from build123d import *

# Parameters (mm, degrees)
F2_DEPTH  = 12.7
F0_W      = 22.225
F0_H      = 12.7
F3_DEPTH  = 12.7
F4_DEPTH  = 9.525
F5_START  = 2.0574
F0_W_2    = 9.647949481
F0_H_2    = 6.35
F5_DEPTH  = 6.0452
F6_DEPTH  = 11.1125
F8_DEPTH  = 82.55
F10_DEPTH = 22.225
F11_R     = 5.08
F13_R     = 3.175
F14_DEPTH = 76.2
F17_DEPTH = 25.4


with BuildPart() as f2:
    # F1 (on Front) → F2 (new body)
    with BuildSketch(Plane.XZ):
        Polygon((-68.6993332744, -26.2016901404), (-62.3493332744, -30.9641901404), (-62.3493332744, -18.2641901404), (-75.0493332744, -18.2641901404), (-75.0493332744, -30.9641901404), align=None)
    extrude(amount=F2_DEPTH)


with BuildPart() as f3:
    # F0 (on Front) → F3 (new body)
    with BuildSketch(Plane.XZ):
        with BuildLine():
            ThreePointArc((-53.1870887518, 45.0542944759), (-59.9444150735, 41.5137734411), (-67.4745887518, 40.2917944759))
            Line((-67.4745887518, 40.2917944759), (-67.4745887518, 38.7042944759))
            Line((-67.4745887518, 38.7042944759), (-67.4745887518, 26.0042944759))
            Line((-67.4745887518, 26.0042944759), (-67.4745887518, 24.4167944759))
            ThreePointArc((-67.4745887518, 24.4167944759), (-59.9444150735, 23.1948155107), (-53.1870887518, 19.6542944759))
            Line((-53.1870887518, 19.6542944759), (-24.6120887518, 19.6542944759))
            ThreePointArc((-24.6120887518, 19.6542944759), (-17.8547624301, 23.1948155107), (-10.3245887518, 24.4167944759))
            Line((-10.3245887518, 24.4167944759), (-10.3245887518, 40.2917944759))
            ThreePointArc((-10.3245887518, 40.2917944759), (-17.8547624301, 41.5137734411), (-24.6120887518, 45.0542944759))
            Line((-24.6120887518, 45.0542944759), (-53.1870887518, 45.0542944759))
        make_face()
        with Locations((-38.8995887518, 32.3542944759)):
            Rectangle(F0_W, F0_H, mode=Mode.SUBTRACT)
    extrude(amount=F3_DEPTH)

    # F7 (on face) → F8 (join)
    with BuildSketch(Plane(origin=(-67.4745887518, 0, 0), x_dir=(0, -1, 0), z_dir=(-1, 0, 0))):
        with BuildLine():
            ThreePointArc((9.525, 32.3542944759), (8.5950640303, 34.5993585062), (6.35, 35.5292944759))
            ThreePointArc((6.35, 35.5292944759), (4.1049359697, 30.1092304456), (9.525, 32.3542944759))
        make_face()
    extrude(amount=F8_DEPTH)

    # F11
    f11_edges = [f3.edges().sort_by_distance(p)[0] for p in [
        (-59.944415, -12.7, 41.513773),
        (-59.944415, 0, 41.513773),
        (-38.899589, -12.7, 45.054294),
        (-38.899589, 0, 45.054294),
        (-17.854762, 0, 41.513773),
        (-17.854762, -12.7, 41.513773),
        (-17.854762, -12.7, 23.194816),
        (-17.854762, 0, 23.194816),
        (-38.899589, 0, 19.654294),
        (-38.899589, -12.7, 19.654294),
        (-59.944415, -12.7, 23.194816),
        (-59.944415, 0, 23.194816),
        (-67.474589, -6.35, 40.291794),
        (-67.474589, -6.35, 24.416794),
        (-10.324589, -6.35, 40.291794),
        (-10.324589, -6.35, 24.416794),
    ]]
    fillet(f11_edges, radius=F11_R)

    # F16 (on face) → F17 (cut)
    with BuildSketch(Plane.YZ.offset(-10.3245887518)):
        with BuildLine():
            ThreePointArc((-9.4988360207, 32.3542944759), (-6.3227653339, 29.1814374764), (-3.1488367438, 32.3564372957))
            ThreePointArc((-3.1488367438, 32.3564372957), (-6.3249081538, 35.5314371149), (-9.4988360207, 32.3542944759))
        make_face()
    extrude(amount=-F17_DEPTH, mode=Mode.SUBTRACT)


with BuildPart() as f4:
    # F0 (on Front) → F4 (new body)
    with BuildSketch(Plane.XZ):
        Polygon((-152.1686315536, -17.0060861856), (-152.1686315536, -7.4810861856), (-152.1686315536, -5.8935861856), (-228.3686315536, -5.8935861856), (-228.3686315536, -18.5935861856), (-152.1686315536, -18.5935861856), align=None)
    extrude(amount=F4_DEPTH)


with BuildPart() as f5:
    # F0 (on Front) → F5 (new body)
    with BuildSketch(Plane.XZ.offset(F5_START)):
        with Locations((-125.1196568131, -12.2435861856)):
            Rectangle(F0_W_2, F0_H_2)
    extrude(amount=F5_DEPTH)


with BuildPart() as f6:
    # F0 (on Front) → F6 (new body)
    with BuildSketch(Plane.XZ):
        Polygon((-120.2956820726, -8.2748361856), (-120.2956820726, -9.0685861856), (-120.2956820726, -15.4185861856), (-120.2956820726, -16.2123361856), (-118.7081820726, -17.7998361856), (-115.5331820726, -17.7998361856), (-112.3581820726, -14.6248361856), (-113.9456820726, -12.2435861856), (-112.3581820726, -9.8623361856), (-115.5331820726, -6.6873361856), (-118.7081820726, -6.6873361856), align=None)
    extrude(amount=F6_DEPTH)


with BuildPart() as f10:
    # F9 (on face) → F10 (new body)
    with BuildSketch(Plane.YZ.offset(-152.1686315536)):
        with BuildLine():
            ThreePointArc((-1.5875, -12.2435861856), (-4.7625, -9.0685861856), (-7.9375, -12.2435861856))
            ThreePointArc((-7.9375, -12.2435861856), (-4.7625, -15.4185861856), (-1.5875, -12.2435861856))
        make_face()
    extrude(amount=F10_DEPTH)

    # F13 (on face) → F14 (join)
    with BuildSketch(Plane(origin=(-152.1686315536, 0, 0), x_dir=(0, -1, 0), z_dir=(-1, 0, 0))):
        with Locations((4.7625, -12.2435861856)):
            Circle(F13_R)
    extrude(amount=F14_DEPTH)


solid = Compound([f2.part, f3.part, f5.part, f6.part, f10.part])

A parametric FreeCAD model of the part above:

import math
import FreeCAD as App
import Part
import Sketcher

V = App.Vector
Q = App.Units.Quantity


def edges_at(feature, points):
    """Names of the edges that pass closest to the given points."""
    edges = feature.Shape.Edges
    near = lambda p: min(range(len(edges)), key=lambda i: edges[i].distToShape(Part.Vertex(*p))[0])
    return sorted({f"Edge{near(p) + 1}" for p in points})


def add_polygon(sketch, points):
    """Adds a closed chain of lines whose ends are joined by coincident constraints."""
    first, n = sketch.GeometryCount, len(points)
    for a, b in zip(points, points[1:] + points[:1]):
        sketch.addGeometry(Part.LineSegment(App.Vector(*a, 0), App.Vector(*b, 0)), False)
    for i in range(n):
        sketch.addConstraint(Sketcher.Constraint("Coincident", first + i, 2, first + (i + 1) % n, 1))

doc = App.newDocument("Part")
body = doc.addObject("PartDesign::Body", "Body")

sketch1 = doc.addObject("Sketcher::SketchObject", "Sketch")
body.addObject(sketch1)
sketch1.AttachmentSupport = (doc.XZ_Plane, [""])
sketch1.MapMode = "FlatFace"
add_polygon(sketch1, [(-69, -26), (-62, -31), (-62, -18), (-75, -18), (-75, -31)])
sketch1.addConstraint([
    Sketcher.Constraint("Vertical", 1),
    Sketcher.Constraint("Horizontal", 2),
    Sketcher.Constraint("Vertical", 3),
    Sketcher.Constraint("Horizontal", 0, 2, 3, 2),
    Sketcher.Constraint("Equal", 2, 1),
    Sketcher.Constraint("Equal", 0, 4),
    Sketcher.Constraint("DistanceX", 2, 2, 2, 1, Q("0.5 in")),
    Sketcher.Constraint("Distance", 0, Q("0.3125 in")),
    Sketcher.Constraint("DistanceY", 0, 2, -1, 1, 30.96419),
    Sketcher.Constraint("DistanceX", 0, 2, -1, 1, 62.349333),
])
pad1 = doc.addObject("PartDesign::Pad", "Pad")
body.addObject(pad1)
pad1.Profile = sketch1
pad1.Length = Q("0.5 in")
body2 = doc.addObject("PartDesign::Body", "Body001")

sketch2 = doc.addObject("Sketcher::SketchObject", "Sketch001")
body2.addObject(sketch2)
sketch2.AttachmentSupport = (doc.getObject("XZ_Plane001"), [""])
sketch2.MapMode = "FlatFace"
sketch2.addGeometry(Part.ArcOfCircle(Part.Circle(V(-67, 64, 0), V(0, 0, 1), 24), math.radians(-90), math.radians(-53)), False)
sketch2.addGeometry(Part.LineSegment(V(-67, 40, 0), V(-67, 24, 0)), False)
sketch2.addGeometry(Part.ArcOfCircle(Part.Circle(V(-67, 1, 0), V(0, 0, 1), 24), math.radians(53), math.radians(90)), False)
sketch2.addGeometry(Part.LineSegment(V(-53, 20, 0), V(-25, 20, 0)), False)
sketch2.addGeometry(Part.ArcOfCircle(Part.Circle(V(-10, 1, 0), V(0, 0, 1), 24), math.radians(90), math.radians(127)), False)
sketch2.addGeometry(Part.LineSegment(V(-10, 24, 0), V(-10, 40, 0)), False)
sketch2.addGeometry(Part.ArcOfCircle(Part.Circle(V(-10, 64, 0), V(0, 0, 1), 24), math.radians(-127), math.radians(-90)), False)
sketch2.addGeometry(Part.LineSegment(V(-25, 45, 0), V(-53, 45, 0)), False)
add_polygon(sketch2, [(-28, 26), (-50, 26), (-50, 39), (-28, 39)])
sketch2.addConstraint([
    Sketcher.Constraint("Coincident", 0, 1, 1, 1),
    Sketcher.Constraint("Coincident", 1, 2, 2, 2),
    Sketcher.Constraint("Coincident", 2, 1, 3, 1),
    Sketcher.Constraint("Coincident", 3, 2, 4, 2),
    Sketcher.Constraint("Coincident", 4, 1, 5, 1),
    Sketcher.Constraint("Coincident", 5, 2, 6, 2),
    Sketcher.Constraint("Coincident", 6, 1, 7, 1),
    Sketcher.Constraint("Coincident", 7, 2, 0, 2),
    Sketcher.Constraint("Vertical", 1),
    Sketcher.Constraint("Horizontal", 3),
    Sketcher.Constraint("Vertical", 5),
    Sketcher.Constraint("Horizontal", 7),
    Sketcher.Constraint("Horizontal", 8),
    Sketcher.Constraint("Vertical", 9),
    Sketcher.Constraint("Horizontal", 10),
    Sketcher.Constraint("Vertical", 11),
    Sketcher.Constraint("Equal", 0, 2),
    Sketcher.Constraint("Equal", 2, 4),
    Sketcher.Constraint("Equal", 4, 6),
    Sketcher.Constraint("Horizontal", 2, 3, 4, 3),
    Sketcher.Constraint("Horizontal", 0, 3, 6, 3),
    Sketcher.Constraint("Vertical", 0, 3, 2, 3),
    Sketcher.Constraint("Vertical", 4, 3, 6, 3),
    Sketcher.Constraint("Vertical", 2, 3, 0, 1),
    Sketcher.Constraint("Vertical", 6, 3, 4, 1),
    Sketcher.Constraint("Vertical", 3, 2, 6, 1),
    Sketcher.Constraint("DistanceY", 9, 1, 9, 2, Q("0.5 in")),
    Sketcher.Constraint("Radius", 0, Q("0.9375 in")),
    Sketcher.Constraint("DistanceY", 3, 2, 6, 1, Q("1 in")),
    Sketcher.Constraint("DistanceX", 8, 2, 3, 2, Q("1 in")),
    Sketcher.Constraint("DistanceY", 2, 3, 0, 3, Q("2.5 in")),
    Sketcher.Constraint("DistanceX", 3, 1, 3, 2, Q("1.125 in")),
    Sketcher.Constraint("DistanceX", 8, 2, 8, 1, Q("0.875 in")),
    Sketcher.Constraint("DistanceY", 2, 1, 8, 2, Q("0.25 in")),
    Sketcher.Constraint("DistanceX", 0, 3, -1, 1, 67.474589),
    Sketcher.Constraint("DistanceY", -1, 1, 0, 3, 64.104294),
])
pad2 = doc.addObject("PartDesign::Pad", "Pad001")
body2.addObject(pad2)
pad2.Profile = sketch2
pad2.Length = Q("0.5 in")

sketch3 = doc.addObject("Sketcher::SketchObject", "Sketch002")
body2.addObject(sketch3)
sketch3.AttachmentSupport = (doc.getObject("YZ_Plane001"), [""])
sketch3.MapMode = "FlatFace"
sketch3.AttachmentOffset = App.Placement(V(0, 0, -67.474589), App.Rotation())
sketch3.addGeometry([
    Part.ArcOfCircle(Part.Circle(V(-6.3, 32.4, 0), V(0, 0, 1), 3.2), math.radians(90), math.radians(180)),
    Part.ArcOfCircle(Part.Circle(V(-6.3, 32.4, 0), V(0, 0, 1), 3.2), math.radians(180), math.radians(450)),
], False)
sketch3.addConstraint([
    Sketcher.Constraint("Tangent", 0, 1, 1, 2),
    Sketcher.Constraint("Coincident", 1, 1, 0, 2),
    Sketcher.Constraint("Horizontal", 0, 3, 1, 1),
    Sketcher.Constraint("Vertical", 1, 3, 0, 1),
    Sketcher.Constraint("Radius", 0, Q("0.125 in")),
    Sketcher.Constraint("DistanceX", 0, 3, -1, 1, Q("0.25 in")),
    Sketcher.Constraint("DistanceY", -1, 1, 0, 3, 32.354294),
])
pad3 = doc.addObject("PartDesign::Pad", "Pad002")
body2.addObject(pad3)
pad3.Profile = sketch3
pad3.Length = Q("3.25 in")
pad3.Reversed = True
doc.recompute()

fillet = doc.addObject("PartDesign::Fillet", "Fillet")
body2.addObject(fillet)
fillet.Base = (pad3, edges_at(pad3, [
    (-59.944, -12.7, 41.514),
    (-59.944, 0, 41.514),
    (-38.9, -12.7, 45.054),
    (-38.9, 0, 45.054),
    (-17.855, 0, 41.514),
    (-17.855, -12.7, 41.514),
    (-17.855, -12.7, 23.195),
    (-17.855, 0, 23.195),
    (-38.9, 0, 19.654),
    (-38.9, -12.7, 19.654),
    (-59.944, -12.7, 23.195),
    (-59.944, 0, 23.195),
    (-67.475, -6.35, 40.292),
    (-67.475, -6.35, 24.417),
    (-10.325, -6.35, 40.292),
    (-10.325, -6.35, 24.417),
]))
fillet.Radius = Q("0.2 in")

sketch4 = doc.addObject("Sketcher::SketchObject", "Sketch003")
body2.addObject(sketch4)
sketch4.AttachmentSupport = (doc.getObject("YZ_Plane001"), [""])
sketch4.MapMode = "FlatFace"
sketch4.AttachmentOffset = App.Placement(V(0, 0, -10.324589), App.Rotation())
sketch4.addGeometry([
    Part.ArcOfCircle(Part.Circle(V(-6.3, 32.4, 0), V(0, 0, 1), 3.2), math.radians(-180), math.radians(0)),
    Part.ArcOfCircle(Part.Circle(V(-6.3, 32.4, 0), V(0, 0, 1), 3.2), math.radians(0), math.radians(180)),
], False)
sketch4.addConstraint([
    Sketcher.Constraint("Tangent", 0, 1, 1, 2),
    Sketcher.Constraint("Coincident", 1, 1, 0, 2),
    Sketcher.Constraint("Horizontal", 0, 3, 1, 1),
    Sketcher.Constraint("Radius", 0, Q("0.125 in")),
    Sketcher.Constraint("DistanceX", 0, 3, -1, 1, 6.323837),
    Sketcher.Constraint("DistanceY", -1, 1, 0, 3, 32.356437),
    Sketcher.Constraint("DistanceY", -1, 1, 0, 1, 32.354294),
])
pocket1 = doc.addObject("PartDesign::Pocket", "Pocket")
body2.addObject(pocket1)
pocket1.Profile = sketch4
pocket1.Length = Q("1 in")
body3 = doc.addObject("PartDesign::Body", "Body002")

sketch5 = doc.addObject("Sketcher::SketchObject", "Sketch004")
body3.addObject(sketch5)
sketch5.AttachmentSupport = (doc.getObject("XZ_Plane002"), [""])
sketch5.MapMode = "FlatFace"
add_polygon(sketch5, [(-152, -6), (-228, -6), (-228, -19), (-152, -19)])
sketch5.addConstraint([
    Sketcher.Constraint("Horizontal", 0),
    Sketcher.Constraint("Vertical", 1),
    Sketcher.Constraint("Horizontal", 2),
    Sketcher.Constraint("Vertical", 3),
    Sketcher.Constraint("DistanceX", 0, 2, 0, 1, Q("3 in")),
    Sketcher.Constraint("DistanceY", 1, 2, 1, 1, Q("0.5 in")),
    Sketcher.Constraint("DistanceX", 0, 2, -1, 1, 228.368632),
    Sketcher.Constraint("DistanceY", 0, 2, -1, 1, 5.893586),
])
pad4 = doc.addObject("PartDesign::Pad", "Pad003")
body3.addObject(pad4)
pad4.Profile = sketch5
pad4.Length = Q("0.375 in")
body4 = doc.addObject("PartDesign::Body", "Body003")

sketch6 = doc.addObject("Sketcher::SketchObject", "Sketch005")
body4.addObject(sketch6)
sketch6.AttachmentSupport = (doc.getObject("XZ_Plane003"), [""])
sketch6.MapMode = "FlatFace"
sketch6.AttachmentOffset = App.Placement(V(0, 0, 0.081 * 25.4), App.Rotation())
add_polygon(sketch6, [(-130, -9), (-130, -15), (-120, -15), (-120, -9)])
sketch6.addConstraint([
    Sketcher.Constraint("Vertical", 0),
    Sketcher.Constraint("Horizontal", 1),
    Sketcher.Constraint("Vertical", 2),
    Sketcher.Constraint("Horizontal", 3),
    Sketcher.Constraint("DistanceY", 0, 2, 0, 1, Q("0.25 in")),
    Sketcher.Constraint("DistanceX", 1, 1, 1, 2, 9.647949),
    Sketcher.Constraint("DistanceX", 0, 2, -1, 1, 129.943632),
    Sketcher.Constraint("DistanceY", 0, 2, -1, 1, 15.418586),
])
pad5 = doc.addObject("PartDesign::Pad", "Pad004")
body4.addObject(pad5)
pad5.Profile = sketch6
pad5.Length = Q("0.238 in")
body5 = doc.addObject("PartDesign::Body", "Body004")

sketch7 = doc.addObject("Sketcher::SketchObject", "Sketch006")
body5.addObject(sketch7)
sketch7.AttachmentSupport = (doc.getObject("XZ_Plane004"), [""])
sketch7.MapMode = "FlatFace"
add_polygon(sketch7, [(-120.3, -8.3), (-120.3, -16.2), (-118.7, -17.8), (-115.5, -17.8), (-112.4, -14.6), (-113.9, -12.2), (-112.4, -9.9), (-115.5, -6.7), (-118.7, -6.7)])
sketch7.addConstraint([
    Sketcher.Constraint("Vertical", 0),
    Sketcher.Constraint("Horizontal", 2),
    Sketcher.Constraint("Horizontal", 7),
    Sketcher.Constraint("Perpendicular", 1, 3),
    Sketcher.Constraint("Perpendicular", 3, 6),
    Sketcher.Constraint("Perpendicular", 6, 8),
    Sketcher.Constraint("Vertical", 3, 2, 5, 2),
    Sketcher.Constraint("Vertical", 2, 2, 6, 2),
    Sketcher.Constraint("Vertical", 1, 2, 7, 2),
    Sketcher.Constraint("Equal", 4, 5),
    Sketcher.Constraint("Equal", 3, 6),
    Sketcher.Constraint("DistanceX", 2, 1, 2, 2, Q("0.125 in")),
    Sketcher.Constraint("DistanceY", 0, 2, 0, 1, Q("0.3125 in")),
    Sketcher.Constraint("DistanceX", 1, 2, 3, 2, Q("0.25 in")),
    Sketcher.Constraint("DistanceX", 0, 2, 4, 2, Q("0.25 in")),
    Sketcher.Constraint("DistanceY", 0, 2, 5, 2, Q("0.25 in")),
    Sketcher.Constraint("DistanceX", 0, 2, -1, 1, 120.295682),
    Sketcher.Constraint("DistanceY", 0, 2, -1, 1, 16.212336),
])
pad6 = doc.addObject("PartDesign::Pad", "Pad005")
body5.addObject(pad6)
pad6.Profile = sketch7
pad6.Length = Q("0.4375 in")
body6 = doc.addObject("PartDesign::Body", "Body005")

sketch8 = doc.addObject("Sketcher::SketchObject", "Sketch007")
body6.addObject(sketch8)
sketch8.AttachmentSupport = (doc.getObject("YZ_Plane005"), [""])
sketch8.MapMode = "FlatFace"
sketch8.AttachmentOffset = App.Placement(V(0, 0, -152.168632), App.Rotation())
sketch8.addGeometry(Part.Circle(V(-4.8, -12.2, 0), V(0, 0, 1), 3.2), False)
sketch8.addConstraint([
    Sketcher.Constraint("Diameter", 0, Q("0.25 in")),
    Sketcher.Constraint("DistanceX", 0, 3, -1, 1, Q("0.1875 in")),
    Sketcher.Constraint("DistanceY", 0, 3, -1, 1, 12.243586),
])
pad7 = doc.addObject("PartDesign::Pad", "Pad006")
body6.addObject(pad7)
pad7.Profile = sketch8
pad7.Length = Q("0.875 in")

sketch9 = doc.addObject("Sketcher::SketchObject", "Sketch008")
body6.addObject(sketch9)
sketch9.AttachmentSupport = (doc.getObject("YZ_Plane005"), [""])
sketch9.MapMode = "FlatFace"
sketch9.AttachmentOffset = App.Placement(V(0, 0, -152.168632), App.Rotation())
sketch9.addGeometry(Part.Circle(V(-4.8, -12.2, 0), V(0, 0, 1), 3.2), False)
sketch9.addConstraint([
    Sketcher.Constraint("Diameter", 0, Q("0.25 in")),
    Sketcher.Constraint("DistanceX", 0, 3, -1, 1, Q("0.1875 in")),
    Sketcher.Constraint("DistanceY", 0, 3, -1, 1, 12.243586),
])
pad8 = doc.addObject("PartDesign::Pad", "Pad007")
body6.addObject(pad8)
pad8.Profile = sketch9
pad8.Length = Q("3 in")
pad8.Reversed = True
body3.Visibility = False

doc.recompute()
